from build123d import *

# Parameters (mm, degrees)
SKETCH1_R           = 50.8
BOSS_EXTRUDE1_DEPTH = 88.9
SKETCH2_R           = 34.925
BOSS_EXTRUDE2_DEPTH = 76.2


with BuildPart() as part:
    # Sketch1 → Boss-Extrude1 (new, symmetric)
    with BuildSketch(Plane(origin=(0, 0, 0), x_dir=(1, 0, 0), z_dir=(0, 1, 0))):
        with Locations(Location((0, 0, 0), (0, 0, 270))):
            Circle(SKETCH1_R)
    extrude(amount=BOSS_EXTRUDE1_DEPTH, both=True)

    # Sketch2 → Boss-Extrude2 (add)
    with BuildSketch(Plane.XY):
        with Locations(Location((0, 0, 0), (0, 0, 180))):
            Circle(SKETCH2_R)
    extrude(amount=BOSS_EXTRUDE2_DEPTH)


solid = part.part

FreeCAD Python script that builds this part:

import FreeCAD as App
import Part
import Sketcher

V = App.Vector
Q = App.Units.Quantity

doc = App.newDocument("Part")
body = doc.addObject("PartDesign::Body", "Body")

# Sketch on XZ plane
sketch1 = doc.addObject("Sketcher::SketchObject", "Sketch")
body.addObject(sketch1)
sketch1.AttachmentSupport = (doc.XZ_Plane, [""])
sketch1.MapMode = "FlatFace"
sketch1.addGeometry(Part.Circle(V(0, 0, 0), V(0, 0, 1), 51), False)
sketch1.addConstraint([
    Sketcher.Constraint("Coincident", 0, 3, -1, 1),
    Sketcher.Constraint("Diameter", 0, Q("4 in")),
])
pad1 = doc.addObject("PartDesign::Pad", "Pad")
body.addObject(pad1)
pad1.Profile = sketch1
pad1.Length = Q("7 in")
pad1.Midplane = True

# Sketch on XY plane
sketch2 = doc.addObject("Sketcher::SketchObject", "Sketch001")
body.addObject(sketch2)
sketch2.AttachmentSupport = (doc.XY_Plane, [""])
sketch2.MapMode = "FlatFace"
sketch2.addGeometry(Part.Circle(V(0, 0, 0), V(0, 0, 1), 35), False)
sketch2.addConstraint([
    Sketcher.Constraint("Coincident", 0, 3, -1, 1),
    Sketcher.Constraint("Diameter", 0, Q("2.75 in")),
])
pad2 = doc.addObject("PartDesign::Pad", "Pad001")
body.addObject(pad2)
pad2.Profile = sketch2
pad2.Length = Q("3 in")

doc.recompute()
